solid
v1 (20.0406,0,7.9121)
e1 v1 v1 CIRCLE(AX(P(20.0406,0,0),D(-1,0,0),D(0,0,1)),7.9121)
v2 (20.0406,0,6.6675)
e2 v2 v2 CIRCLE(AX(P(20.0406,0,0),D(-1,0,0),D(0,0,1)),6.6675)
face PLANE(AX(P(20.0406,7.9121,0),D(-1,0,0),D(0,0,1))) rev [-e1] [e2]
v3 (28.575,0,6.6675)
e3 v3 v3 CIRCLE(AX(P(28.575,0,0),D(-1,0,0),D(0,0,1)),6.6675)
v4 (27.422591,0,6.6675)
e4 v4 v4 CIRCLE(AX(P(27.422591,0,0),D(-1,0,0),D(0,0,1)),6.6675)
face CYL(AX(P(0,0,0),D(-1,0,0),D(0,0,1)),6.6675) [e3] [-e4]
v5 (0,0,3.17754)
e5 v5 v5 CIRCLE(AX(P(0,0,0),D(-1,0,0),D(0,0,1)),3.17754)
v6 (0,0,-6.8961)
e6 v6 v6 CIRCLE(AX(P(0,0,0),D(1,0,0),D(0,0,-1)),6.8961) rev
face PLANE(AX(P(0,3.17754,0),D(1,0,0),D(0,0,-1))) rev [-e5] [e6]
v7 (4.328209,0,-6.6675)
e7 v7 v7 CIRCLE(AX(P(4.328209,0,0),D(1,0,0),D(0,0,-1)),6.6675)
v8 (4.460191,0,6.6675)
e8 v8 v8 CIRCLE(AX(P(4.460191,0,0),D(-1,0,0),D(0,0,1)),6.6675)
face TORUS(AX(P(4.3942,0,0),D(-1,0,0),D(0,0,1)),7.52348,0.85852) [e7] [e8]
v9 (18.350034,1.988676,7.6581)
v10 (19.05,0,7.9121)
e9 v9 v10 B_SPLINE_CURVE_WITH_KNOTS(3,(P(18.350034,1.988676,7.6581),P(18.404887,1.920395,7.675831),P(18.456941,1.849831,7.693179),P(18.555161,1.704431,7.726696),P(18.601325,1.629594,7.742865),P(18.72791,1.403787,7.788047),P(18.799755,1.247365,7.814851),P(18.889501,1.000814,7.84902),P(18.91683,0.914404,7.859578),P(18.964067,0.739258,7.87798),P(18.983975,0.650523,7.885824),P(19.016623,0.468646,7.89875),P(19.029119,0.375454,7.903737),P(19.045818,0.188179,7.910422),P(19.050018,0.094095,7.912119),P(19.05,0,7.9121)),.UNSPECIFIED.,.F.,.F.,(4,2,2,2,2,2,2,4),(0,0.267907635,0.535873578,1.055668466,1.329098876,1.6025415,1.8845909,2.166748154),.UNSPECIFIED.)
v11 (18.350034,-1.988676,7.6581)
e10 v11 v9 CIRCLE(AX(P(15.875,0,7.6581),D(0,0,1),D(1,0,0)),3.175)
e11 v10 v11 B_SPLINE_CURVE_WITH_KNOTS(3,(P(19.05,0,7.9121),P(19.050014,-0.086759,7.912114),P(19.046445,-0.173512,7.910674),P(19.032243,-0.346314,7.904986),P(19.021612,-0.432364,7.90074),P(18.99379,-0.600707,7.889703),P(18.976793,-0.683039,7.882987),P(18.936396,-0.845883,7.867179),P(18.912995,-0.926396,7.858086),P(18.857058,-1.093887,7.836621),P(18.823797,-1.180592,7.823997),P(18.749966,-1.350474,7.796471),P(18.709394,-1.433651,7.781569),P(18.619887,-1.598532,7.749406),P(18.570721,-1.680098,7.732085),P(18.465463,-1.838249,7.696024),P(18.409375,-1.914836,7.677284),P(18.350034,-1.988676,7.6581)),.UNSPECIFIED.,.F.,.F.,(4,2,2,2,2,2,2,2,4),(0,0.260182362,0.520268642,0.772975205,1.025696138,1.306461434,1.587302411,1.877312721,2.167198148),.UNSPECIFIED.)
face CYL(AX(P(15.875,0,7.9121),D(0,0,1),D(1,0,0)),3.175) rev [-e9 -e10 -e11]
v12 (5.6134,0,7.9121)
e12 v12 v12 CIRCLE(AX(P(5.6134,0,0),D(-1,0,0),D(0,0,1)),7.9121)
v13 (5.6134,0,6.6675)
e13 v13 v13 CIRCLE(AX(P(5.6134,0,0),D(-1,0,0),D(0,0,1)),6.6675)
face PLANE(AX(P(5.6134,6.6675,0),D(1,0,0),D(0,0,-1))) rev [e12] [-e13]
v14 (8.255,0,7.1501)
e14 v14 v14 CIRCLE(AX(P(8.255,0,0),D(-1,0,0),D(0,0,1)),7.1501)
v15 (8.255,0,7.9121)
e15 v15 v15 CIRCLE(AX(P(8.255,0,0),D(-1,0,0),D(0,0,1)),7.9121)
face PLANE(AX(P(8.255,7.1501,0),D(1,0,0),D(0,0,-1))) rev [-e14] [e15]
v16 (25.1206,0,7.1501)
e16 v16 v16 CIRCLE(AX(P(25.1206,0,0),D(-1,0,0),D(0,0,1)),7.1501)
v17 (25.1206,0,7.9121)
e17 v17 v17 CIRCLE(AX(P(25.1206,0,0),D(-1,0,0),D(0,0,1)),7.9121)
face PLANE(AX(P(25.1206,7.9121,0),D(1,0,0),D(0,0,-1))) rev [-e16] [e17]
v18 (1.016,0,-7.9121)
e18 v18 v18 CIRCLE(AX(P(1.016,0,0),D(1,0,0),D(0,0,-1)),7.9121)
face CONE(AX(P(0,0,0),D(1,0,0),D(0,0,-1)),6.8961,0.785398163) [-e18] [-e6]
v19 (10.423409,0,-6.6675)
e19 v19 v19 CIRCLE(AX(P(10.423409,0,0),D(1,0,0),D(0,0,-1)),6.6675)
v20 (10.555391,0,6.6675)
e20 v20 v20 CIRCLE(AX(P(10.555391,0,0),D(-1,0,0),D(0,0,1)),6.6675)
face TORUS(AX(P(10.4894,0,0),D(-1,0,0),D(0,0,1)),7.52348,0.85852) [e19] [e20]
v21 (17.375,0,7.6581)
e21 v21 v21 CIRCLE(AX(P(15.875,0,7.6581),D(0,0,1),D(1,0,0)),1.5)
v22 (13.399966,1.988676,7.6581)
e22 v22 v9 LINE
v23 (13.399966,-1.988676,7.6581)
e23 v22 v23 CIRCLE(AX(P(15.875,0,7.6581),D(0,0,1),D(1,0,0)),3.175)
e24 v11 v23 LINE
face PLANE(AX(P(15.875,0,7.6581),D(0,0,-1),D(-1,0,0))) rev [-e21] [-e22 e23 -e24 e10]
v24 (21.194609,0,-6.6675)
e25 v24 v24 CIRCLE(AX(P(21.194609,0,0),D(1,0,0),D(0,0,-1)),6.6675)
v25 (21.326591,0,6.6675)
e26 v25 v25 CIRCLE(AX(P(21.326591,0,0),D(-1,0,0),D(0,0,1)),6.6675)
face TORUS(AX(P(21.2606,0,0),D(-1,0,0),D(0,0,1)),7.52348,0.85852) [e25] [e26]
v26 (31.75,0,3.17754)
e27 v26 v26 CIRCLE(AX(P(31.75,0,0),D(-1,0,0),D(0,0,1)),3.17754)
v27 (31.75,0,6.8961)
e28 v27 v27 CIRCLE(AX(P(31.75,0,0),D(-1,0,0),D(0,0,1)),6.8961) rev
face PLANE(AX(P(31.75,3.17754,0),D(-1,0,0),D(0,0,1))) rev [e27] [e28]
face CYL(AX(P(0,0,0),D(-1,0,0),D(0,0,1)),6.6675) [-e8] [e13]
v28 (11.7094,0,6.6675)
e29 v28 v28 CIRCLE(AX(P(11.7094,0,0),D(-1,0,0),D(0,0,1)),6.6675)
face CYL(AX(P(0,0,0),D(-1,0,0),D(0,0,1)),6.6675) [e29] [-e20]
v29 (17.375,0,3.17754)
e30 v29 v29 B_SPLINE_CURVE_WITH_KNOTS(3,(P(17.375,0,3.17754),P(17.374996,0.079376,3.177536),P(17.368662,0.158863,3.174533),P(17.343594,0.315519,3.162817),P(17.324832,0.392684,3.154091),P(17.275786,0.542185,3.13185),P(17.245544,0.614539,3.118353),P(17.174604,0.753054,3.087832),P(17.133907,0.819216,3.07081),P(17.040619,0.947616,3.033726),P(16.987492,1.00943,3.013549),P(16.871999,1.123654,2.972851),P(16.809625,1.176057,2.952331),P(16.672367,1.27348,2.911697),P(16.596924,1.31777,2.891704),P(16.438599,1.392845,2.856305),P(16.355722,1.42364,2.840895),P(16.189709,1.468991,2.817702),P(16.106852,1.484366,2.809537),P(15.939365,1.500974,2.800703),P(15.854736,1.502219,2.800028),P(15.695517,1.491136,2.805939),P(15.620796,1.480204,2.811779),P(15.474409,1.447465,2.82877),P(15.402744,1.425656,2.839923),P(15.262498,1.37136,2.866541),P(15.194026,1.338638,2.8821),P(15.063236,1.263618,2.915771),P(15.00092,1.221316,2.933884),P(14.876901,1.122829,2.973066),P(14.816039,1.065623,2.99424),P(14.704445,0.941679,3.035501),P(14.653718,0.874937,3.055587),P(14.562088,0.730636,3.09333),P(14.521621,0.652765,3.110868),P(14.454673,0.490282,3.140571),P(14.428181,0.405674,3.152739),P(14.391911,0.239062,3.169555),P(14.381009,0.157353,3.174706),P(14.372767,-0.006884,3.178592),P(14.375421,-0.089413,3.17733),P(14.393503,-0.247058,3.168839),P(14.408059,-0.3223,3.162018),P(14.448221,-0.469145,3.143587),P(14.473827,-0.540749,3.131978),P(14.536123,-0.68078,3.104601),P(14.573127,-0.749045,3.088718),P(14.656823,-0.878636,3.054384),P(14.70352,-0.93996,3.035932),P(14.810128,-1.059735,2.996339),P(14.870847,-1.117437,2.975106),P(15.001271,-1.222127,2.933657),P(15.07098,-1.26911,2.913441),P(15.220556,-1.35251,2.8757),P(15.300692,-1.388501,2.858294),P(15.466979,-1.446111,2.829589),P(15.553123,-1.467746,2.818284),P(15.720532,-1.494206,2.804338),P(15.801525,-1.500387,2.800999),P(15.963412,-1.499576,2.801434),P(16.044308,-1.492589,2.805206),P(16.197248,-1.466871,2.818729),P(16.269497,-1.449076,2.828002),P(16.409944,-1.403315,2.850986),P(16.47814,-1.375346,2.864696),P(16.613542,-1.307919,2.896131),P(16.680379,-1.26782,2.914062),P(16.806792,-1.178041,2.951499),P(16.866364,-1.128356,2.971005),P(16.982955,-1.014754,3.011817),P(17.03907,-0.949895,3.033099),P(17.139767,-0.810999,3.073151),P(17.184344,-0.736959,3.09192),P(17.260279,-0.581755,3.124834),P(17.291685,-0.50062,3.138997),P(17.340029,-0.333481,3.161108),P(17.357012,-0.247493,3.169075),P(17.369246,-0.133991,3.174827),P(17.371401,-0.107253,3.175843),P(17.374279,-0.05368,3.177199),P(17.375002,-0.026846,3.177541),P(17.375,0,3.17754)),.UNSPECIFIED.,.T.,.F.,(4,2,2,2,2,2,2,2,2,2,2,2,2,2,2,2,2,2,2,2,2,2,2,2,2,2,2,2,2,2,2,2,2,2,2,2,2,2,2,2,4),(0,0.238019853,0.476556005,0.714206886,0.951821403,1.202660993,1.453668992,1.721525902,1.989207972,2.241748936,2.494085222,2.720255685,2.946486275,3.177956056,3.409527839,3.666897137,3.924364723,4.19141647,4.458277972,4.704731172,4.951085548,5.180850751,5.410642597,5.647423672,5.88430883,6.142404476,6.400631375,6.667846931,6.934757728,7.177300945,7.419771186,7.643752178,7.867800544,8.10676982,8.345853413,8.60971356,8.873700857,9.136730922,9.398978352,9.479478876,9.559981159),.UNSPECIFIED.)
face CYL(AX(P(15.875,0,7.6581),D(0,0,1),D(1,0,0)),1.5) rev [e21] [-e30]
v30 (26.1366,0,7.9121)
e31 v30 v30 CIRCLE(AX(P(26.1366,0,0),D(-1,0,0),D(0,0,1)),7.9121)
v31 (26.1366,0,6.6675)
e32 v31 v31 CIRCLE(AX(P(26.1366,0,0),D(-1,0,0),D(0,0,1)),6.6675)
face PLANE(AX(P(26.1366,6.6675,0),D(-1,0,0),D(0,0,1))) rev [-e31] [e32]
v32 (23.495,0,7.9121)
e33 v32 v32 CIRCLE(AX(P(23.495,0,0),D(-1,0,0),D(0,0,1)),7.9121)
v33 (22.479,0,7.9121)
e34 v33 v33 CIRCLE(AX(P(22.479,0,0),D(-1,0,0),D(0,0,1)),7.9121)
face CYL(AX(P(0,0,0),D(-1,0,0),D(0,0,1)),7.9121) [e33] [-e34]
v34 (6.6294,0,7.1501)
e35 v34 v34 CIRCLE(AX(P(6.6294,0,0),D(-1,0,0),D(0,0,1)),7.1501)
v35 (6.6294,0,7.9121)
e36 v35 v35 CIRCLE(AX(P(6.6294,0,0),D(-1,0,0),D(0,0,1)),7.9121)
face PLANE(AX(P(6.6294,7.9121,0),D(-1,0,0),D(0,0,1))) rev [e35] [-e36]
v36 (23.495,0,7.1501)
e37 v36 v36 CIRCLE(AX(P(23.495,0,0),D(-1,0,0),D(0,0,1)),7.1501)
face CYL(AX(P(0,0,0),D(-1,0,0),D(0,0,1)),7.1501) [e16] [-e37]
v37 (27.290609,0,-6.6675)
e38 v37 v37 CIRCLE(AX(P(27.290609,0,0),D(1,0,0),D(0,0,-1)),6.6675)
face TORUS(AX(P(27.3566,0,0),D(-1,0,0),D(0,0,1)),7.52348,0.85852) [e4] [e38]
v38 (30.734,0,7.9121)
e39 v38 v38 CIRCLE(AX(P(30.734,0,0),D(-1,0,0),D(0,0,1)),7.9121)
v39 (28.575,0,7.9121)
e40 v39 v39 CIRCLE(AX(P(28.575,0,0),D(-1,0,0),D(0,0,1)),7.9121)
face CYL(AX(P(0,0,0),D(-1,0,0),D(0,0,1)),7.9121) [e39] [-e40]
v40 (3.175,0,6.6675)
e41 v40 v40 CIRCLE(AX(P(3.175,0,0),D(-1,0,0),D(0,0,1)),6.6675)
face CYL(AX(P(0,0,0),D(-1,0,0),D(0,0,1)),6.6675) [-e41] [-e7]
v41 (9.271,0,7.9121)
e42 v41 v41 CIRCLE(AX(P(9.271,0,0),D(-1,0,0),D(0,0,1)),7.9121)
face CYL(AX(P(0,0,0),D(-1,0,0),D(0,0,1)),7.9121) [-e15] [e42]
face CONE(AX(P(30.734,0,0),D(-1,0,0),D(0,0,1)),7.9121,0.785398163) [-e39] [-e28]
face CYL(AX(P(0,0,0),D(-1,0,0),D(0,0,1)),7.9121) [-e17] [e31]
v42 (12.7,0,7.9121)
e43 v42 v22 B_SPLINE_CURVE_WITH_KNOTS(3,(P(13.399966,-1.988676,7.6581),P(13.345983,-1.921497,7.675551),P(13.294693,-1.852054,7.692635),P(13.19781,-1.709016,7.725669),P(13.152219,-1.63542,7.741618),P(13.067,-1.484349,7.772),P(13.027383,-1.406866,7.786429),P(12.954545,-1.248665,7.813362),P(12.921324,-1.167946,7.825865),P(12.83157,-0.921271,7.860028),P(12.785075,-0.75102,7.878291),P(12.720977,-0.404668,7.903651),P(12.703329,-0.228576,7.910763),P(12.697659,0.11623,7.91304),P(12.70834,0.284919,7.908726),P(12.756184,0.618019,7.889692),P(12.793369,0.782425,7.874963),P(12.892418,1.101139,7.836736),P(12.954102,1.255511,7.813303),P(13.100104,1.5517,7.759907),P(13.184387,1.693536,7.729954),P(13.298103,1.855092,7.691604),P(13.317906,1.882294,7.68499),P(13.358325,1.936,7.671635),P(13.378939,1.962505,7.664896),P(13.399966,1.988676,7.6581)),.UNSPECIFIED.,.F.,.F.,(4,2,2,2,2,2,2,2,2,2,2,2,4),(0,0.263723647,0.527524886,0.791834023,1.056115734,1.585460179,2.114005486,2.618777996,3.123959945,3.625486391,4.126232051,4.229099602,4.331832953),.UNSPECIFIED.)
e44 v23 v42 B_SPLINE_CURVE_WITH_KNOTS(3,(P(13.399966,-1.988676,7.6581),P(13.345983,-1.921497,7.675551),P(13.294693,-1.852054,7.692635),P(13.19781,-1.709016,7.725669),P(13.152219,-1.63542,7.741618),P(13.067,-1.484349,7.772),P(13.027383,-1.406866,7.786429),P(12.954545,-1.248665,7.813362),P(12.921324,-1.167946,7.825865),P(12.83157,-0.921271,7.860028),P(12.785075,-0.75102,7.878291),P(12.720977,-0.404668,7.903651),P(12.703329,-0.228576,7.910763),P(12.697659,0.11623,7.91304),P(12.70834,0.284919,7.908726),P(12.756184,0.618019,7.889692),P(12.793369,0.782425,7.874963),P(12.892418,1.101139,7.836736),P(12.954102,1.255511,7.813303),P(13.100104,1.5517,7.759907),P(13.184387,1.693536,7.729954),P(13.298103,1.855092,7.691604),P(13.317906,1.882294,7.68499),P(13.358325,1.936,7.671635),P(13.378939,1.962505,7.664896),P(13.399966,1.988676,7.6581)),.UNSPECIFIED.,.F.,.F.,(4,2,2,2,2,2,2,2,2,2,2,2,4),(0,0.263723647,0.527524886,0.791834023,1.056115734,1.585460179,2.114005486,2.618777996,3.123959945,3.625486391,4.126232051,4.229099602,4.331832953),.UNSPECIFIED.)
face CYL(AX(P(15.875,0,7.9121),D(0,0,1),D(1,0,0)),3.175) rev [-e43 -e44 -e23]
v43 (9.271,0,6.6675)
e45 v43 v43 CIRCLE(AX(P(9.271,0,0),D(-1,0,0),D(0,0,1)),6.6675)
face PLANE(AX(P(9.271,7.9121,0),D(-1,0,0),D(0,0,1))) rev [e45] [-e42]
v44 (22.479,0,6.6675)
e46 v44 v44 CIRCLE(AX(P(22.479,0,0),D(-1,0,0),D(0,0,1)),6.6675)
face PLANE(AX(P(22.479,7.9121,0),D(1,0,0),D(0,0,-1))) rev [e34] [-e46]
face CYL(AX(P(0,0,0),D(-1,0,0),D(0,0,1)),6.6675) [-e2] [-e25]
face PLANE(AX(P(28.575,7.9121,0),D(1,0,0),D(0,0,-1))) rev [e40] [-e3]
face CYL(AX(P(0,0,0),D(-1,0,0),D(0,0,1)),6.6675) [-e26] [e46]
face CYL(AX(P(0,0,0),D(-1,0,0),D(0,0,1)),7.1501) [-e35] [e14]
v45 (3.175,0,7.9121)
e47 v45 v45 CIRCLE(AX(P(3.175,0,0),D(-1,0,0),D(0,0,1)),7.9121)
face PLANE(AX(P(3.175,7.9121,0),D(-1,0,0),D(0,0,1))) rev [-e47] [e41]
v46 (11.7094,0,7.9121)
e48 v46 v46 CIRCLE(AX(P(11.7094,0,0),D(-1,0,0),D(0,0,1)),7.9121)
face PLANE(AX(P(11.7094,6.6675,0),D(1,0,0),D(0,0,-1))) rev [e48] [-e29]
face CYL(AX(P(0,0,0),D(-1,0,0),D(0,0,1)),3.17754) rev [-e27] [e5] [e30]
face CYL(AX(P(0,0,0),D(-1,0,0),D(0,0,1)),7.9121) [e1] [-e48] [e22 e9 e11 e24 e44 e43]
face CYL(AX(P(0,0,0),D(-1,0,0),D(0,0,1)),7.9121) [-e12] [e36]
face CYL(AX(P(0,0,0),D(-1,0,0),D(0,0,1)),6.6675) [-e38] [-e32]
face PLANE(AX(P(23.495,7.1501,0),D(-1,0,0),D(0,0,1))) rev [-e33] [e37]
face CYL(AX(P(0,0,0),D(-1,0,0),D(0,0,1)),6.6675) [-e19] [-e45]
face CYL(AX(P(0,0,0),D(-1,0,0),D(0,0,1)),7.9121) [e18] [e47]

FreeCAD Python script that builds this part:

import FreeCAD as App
import Part
import Sketcher

V = App.Vector
Q = App.Units.Quantity


def edges_at(feature, points):
    """Names of the edges that pass closest to the given points."""
    edges = feature.Shape.Edges
    near = lambda p: min(range(len(edges)), key=lambda i: edges[i].distToShape(Part.Vertex(*p))[0])
    return sorted({f"Edge{near(p) + 1}" for p in points})


def add_polygon(sketch, points):
    """Adds a closed chain of lines whose ends are joined by coincident constraints."""
    first, n = sketch.GeometryCount, len(points)
    for a, b in zip(points, points[1:] + points[:1]):
        sketch.addGeometry(Part.LineSegment(App.Vector(*a, 0), App.Vector(*b, 0)), False)
    for i in range(n):
        sketch.addConstraint(Sketcher.Constraint("Coincident", first + i, 2, first + (i + 1) % n, 1))

doc = App.newDocument("Part")
body = doc.addObject("PartDesign::Body", "Body")

# Sketch on XY plane
sketch1 = body.newObject("Sketcher::SketchObject", "Sketch")
sketch1.AttachmentSupport = (doc.getObject("XY_Plane"), [""])
sketch1.MapMode = "FlatFace"
add_polygon(sketch1, [(0, 3.2), (31.8, 3.2), (31.8, 7.9), (28.6, 7.9), (28.6, 6.7), (26.1, 6.7), (26.1, 7.9), (25.1, 7.9), (25.1, 7.2), (23.5, 7.2), (23.5, 7.9), (22.5, 7.9), (22.5, 6.7), (20, 6.7), (20, 7.9), (11.7, 7.9), (11.7, 6.7), (9.3, 6.7), (9.3, 7.9), (8.3, 7.9), (8.3, 7.2), (6.6, 7.2), (6.6, 7.9), (5.6, 7.9), (5.6, 6.7), (3.2, 6.7), (3.2, 7.9), (0, 7.9)])  # lines 0-27
sketch1.addConstraint(Sketcher.Constraint("Horizontal", 0))
sketch1.addConstraint(Sketcher.Constraint("Vertical", 1))
sketch1.addConstraint(Sketcher.Constraint("Horizontal", 2))
sketch1.addConstraint(Sketcher.Constraint("Vertical", 3))
sketch1.addConstraint(Sketcher.Constraint("Horizontal", 4))
sketch1.addConstraint(Sketcher.Constraint("Vertical", 5))
sketch1.addConstraint(Sketcher.Constraint("Horizontal", 6))
sketch1.addConstraint(Sketcher.Constraint("Vertical", 7))
sketch1.addConstraint(Sketcher.Constraint("Horizontal", 8))
sketch1.addConstraint(Sketcher.Constraint("Vertical", 9))
sketch1.addConstraint(Sketcher.Constraint("Horizontal", 10))
sketch1.addConstraint(Sketcher.Constraint("Vertical", 11))
sketch1.addConstraint(Sketcher.Constraint("Horizontal", 12))
sketch1.addConstraint(Sketcher.Constraint("Vertical", 13))
sketch1.addConstraint(Sketcher.Constraint("Horizontal", 14))
sketch1.addConstraint(Sketcher.Constraint("Vertical", 15))
sketch1.addConstraint(Sketcher.Constraint("Horizontal", 16))
sketch1.addConstraint(Sketcher.Constraint("Vertical", 17))
sketch1.addConstraint(Sketcher.Constraint("Horizontal", 18))
sketch1.addConstraint(Sketcher.Constraint("Vertical", 19))
sketch1.addConstraint(Sketcher.Constraint("Horizontal", 20))
sketch1.addConstraint(Sketcher.Constraint("Vertical", 21))
sketch1.addConstraint(Sketcher.Constraint("Horizontal", 22))
sketch1.addConstraint(Sketcher.Constraint("Vertical", 23))
sketch1.addConstraint(Sketcher.Constraint("Horizontal", 24))
sketch1.addConstraint(Sketcher.Constraint("Vertical", 25))
sketch1.addConstraint(Sketcher.Constraint("Horizontal", 26))
sketch1.addConstraint(Sketcher.Constraint("Vertical", 27))
sketch1.addConstraint(Sketcher.Constraint("PointOnObject", 26, 2, -2))
sketch1.addConstraint(Sketcher.Constraint("Horizontal", 2, 2, 5, 2))
sketch1.addConstraint(Sketcher.Constraint("Horizontal", 6, 2, 9, 2))
sketch1.addConstraint(Sketcher.Constraint("Horizontal", 4, 2, 11, 2))
sketch1.addConstraint(Sketcher.Constraint("Horizontal", 10, 2, 13, 2))
sketch1.addConstraint(Sketcher.Constraint("Horizontal", 12, 2, 15, 2))
sketch1.addConstraint(Sketcher.Constraint("Horizontal", 14, 2, 17, 2))
sketch1.addConstraint(Sketcher.Constraint("Horizontal", 8, 2, 19, 2))
sketch1.addConstraint(Sketcher.Constraint("Horizontal", 18, 2, 21, 2))
sketch1.addConstraint(Sketcher.Constraint("Horizontal", 16, 2, 23, 2))
sketch1.addConstraint(Sketcher.Constraint("Horizontal", 22, 2, 25, 2))
sketch1.addConstraint(Sketcher.Constraint("Equal", 6, 10))
sketch1.addConstraint(Sketcher.Constraint("Equal", 4, 12))
sketch1.addConstraint(Sketcher.Constraint("Equal", 12, 16))
sketch1.addConstraint(Sketcher.Constraint("Equal", 10, 18))
sketch1.addConstraint(Sketcher.Constraint("Equal", 8, 20))
sketch1.addConstraint(Sketcher.Constraint("Equal", 18, 22))
sketch1.addConstraint(Sketcher.Constraint("Equal", 16, 24))
sketch1.addConstraint(Sketcher.Constraint("Equal", 2, 26))
sketch1.addConstraint(Sketcher.Constraint("DistanceX", 0, 1, 0, 2, Q("1.25 in")))
sketch1.addConstraint(Sketcher.Constraint("DistanceX", 6, 2, 6, 1, Q("0.04 in")))
sketch1.addConstraint(Sketcher.Constraint("DistanceY", 7, 2, 7, 1, Q("0.03 in")))
sketch1.addConstraint(Sketcher.Constraint("DistanceX", 8, 2, 3, 2, Q("0.2 in")))
sketch1.addConstraint(Sketcher.Constraint("DistanceX", 2, 2, 2, 1, Q("0.125 in")))
sketch1.addConstraint(Sketcher.Constraint("DistanceX", 4, 2, 4, 1, Q("0.096 in")))
sketch1.addConstraint(Sketcher.Constraint("DistanceY", 3, 2, 3, 1, Q("0.049 in")))
sketch1.addConstraint(Sketcher.Constraint("DistanceY", 1, 1, 1, 2, Q("0.1864 in")))
sketch1.addConstraint(Sketcher.Constraint("DistanceY", -1, 1, 0, 2, Q("0.1251 in")))
revolution = body.newObject("PartDesign::Revolution", "Revolution")
revolution.Profile = sketch1
revolution.ReferenceAxis = (sketch1, ["H_Axis"])
revolution.Angle = 360
doc.recompute()

chamfer = body.newObject("PartDesign::Chamfer", "Chamfer")
chamfer.Base = (revolution, edges_at(revolution, [(31.75, 0, -7.912), (0, 0, -7.912)]))
chamfer.Size = Q("0.04 in")

# Sketch on XY plane
sketch2 = body.newObject("Sketcher::SketchObject", "Sketch001")
sketch2.AttachmentSupport = (doc.getObject("XY_Plane"), [""])
sketch2.MapMode = "FlatFace"
sketch2.AttachmentOffset = App.Placement(V(0, 0, 0.3115 * 25.4), App.Rotation())
sketch2.addGeometry(Part.Circle(V(15.9, 0, 0), V(0, 0, 1), 3.2), False)
sketch2.addConstraint(Sketcher.Constraint("PointOnObject", 0, 3, -1))
sketch2.addConstraint(Sketcher.Constraint("Diameter", 0, Q("0.25 in")))
sketch2.addConstraint(Sketcher.Constraint("DistanceX", -1, 1, 0, 3, Q("0.625 in")))
doc.recompute()
hole = body.newObject("PartDesign::Hole", "Hole")
hole.Profile = sketch2
hole.ThreadType = "None"
hole.Diameter = Q("0.25 in")
hole.DepthType = "Dimension"
hole.Depth = Q("0.01 in")
hole.DrillPoint = "Flat"

# Sketch on XY plane
sketch3 = body.newObject("Sketcher::SketchObject", "Sketch002")
sketch3.AttachmentSupport = (doc.getObject("XY_Plane"), [""])
sketch3.MapMode = "FlatFace"
sketch3.AttachmentOffset = App.Placement(V(0, 0, 0.3015 * 25.4), App.Rotation())
sketch3.addGeometry(Part.Circle(V(15.9, 0, 0), V(0, 0, 1), 1.2), False)
sketch3.addConstraint(Sketcher.Constraint("PointOnObject", 0, 3, -1))
sketch3.addConstraint(Sketcher.Constraint("Diameter", 0, Q("0.098 in")))
sketch3.addConstraint(Sketcher.Constraint("DistanceX", -1, 1, 0, 3, Q("0.625 in")))
doc.recompute()
hole2 = body.newObject("PartDesign::Hole", "Hole001")
hole2.Profile = sketch3
hole2.ThreadType = "None"
hole2.Diameter = Q("0.098 in")
hole2.DepthType = "Dimension"
hole2.Depth = Q("0.25 in")
hole2.DrillPoint = "Angled"
hole2.DrillPointAngle = 118
hole2.HoleCutType = "Counterbore"
hole2.HoleCutDiameter = 3
hole2.HoleCutDepth = Q("0.24 in")

# Sketch on XY plane
sketch4 = body.newObject("Sketcher::SketchObject", "Sketch003")
sketch4.AttachmentSupport = (doc.getObject("XY_Plane"), [""])
sketch4.MapMode = "FlatFace"
sketch4.addGeometry(Part.Circle(V(27.4, 7.5, 0), V(0, 0, 1), 0.9), False)
sketch4.addGeometry(Part.Circle(V(21.3, 7.5, 0), V(0, 0, 1), 0.9), False)
sketch4.addGeometry(Part.Circle(V(10.5, 7.5, 0), V(0, 0, 1), 0.9), False)
sketch4.addGeometry(Part.Circle(V(4.4, 7.5, 0), V(0, 0, 1), 0.9), False)
sketch4.addConstraint(Sketcher.Constraint("Equal", 0, 1))
sketch4.addConstraint(Sketcher.Constraint("Equal", 1, 2))
sketch4.addConstraint(Sketcher.Constraint("Equal", 2, 3))
sketch4.addConstraint(Sketcher.Constraint("Horizontal", 0, 3, 1, 3))
sketch4.addConstraint(Sketcher.Constraint("Horizontal", 1, 3, 2, 3))
sketch4.addConstraint(Sketcher.Constraint("Horizontal", 2, 3, 3, 3))
sketch4.addConstraint(Sketcher.Constraint("Diameter", 0, Q("0.0676 in")))
sketch4.addConstraint(Sketcher.Constraint("DistanceX", 1, 3, 0, 3, Q("0.24 in")))
sketch4.addConstraint(Sketcher.Constraint("DistanceX", -1, 1, 3, 3, Q("0.173 in")))
sketch4.addConstraint(Sketcher.Constraint("DistanceY", -1, 1, 0, 3, Q("0.2962 in")))
sketch4.addConstraint(Sketcher.Constraint("DistanceX", -1, 1, 0, 3, Q("27.3566 mm")))
sketch4.addConstraint(Sketcher.Constraint("DistanceX", -1, 1, 2, 3, Q("10.4894 mm")))
revolution2 = body.newObject("PartDesign::Revolution", "Revolution001")
revolution2.Profile = sketch4
revolution2.ReferenceAxis = (sketch4, ["H_Axis"])
revolution2.Angle = 360

doc.recompute()
